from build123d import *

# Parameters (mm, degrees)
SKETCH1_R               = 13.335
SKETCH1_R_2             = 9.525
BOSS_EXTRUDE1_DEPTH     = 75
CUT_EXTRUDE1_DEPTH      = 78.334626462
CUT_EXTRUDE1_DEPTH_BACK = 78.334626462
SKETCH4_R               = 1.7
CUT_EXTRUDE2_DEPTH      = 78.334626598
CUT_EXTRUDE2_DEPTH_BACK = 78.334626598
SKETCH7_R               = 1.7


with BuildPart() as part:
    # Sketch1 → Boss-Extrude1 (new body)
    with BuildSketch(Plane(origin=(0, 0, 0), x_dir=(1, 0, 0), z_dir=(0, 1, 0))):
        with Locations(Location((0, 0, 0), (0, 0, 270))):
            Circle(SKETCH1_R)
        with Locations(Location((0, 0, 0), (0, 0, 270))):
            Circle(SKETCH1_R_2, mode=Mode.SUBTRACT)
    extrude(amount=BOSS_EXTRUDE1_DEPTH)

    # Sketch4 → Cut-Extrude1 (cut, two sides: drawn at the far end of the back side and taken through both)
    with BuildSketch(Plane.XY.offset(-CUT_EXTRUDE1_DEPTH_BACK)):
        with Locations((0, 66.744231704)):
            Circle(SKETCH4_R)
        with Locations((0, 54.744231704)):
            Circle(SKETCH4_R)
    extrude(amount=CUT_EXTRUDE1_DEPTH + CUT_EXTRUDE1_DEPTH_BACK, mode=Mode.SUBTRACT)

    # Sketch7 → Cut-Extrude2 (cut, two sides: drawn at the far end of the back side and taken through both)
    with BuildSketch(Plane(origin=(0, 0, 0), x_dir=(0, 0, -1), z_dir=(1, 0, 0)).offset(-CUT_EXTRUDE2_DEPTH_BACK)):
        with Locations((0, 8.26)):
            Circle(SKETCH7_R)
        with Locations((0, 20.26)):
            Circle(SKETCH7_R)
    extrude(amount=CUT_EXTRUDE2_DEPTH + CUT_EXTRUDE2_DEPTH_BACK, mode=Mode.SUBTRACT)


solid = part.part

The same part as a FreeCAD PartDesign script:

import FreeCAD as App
import Part
import Sketcher

doc = App.newDocument("Part")
params = doc.addObject("Spreadsheet::Sheet", "Params")
for row, (alias, value) in enumerate([
    ("sketch1_diameter", "26.67 mm"),
    ("sketch1_diameter2", "19.05 mm"),
    ("pad1_length", "75 mm"),
    ("sketch2_diameter", "3.4 mm"),
    ("sketch3_diameter", "3.4 mm"),
], start=1):
    params.set(f"A{row}", alias)
    params.set(f"B{row}", "=" + value)
    params.setAlias(f"B{row}", alias)

body = doc.addObject("PartDesign::Body", "Body")

# Sketch on XZ plane
sketch1 = doc.addObject("Sketcher::SketchObject", "Sketch")
body.addObject(sketch1)
sketch1.AttachmentSupport = (doc.XZ_Plane, [""])
sketch1.MapMode = "FlatFace"
sketch1.addGeometry([
    Part.Circle(App.Vector(0, 0, 0), App.Vector(0, 0, 1), 13),
    Part.Circle(App.Vector(0, 0, 0), App.Vector(0, 0, 1), 10),
], False)
sketch1.addConstraint([
    Sketcher.Constraint("Coincident", 0, 3, -1, 1),
    Sketcher.Constraint("Coincident", 1, 3, -1, 1),
    Sketcher.Constraint("Diameter", 0, 26.67),
    Sketcher.Constraint("Diameter", 1, 19.05),
])
sketch1.setExpression("Constraints[2]", "Params.sketch1_diameter")
sketch1.setExpression("Constraints[3]", "Params.sketch1_diameter2")
pad1 = doc.addObject("PartDesign::Pad", "Pad")
body.addObject(pad1)
pad1.Profile = sketch1
pad1.setExpression("Length", "Params.pad1_length")
pad1.Reversed = True

# Sketch on XY plane
sketch2 = doc.addObject("Sketcher::SketchObject", "Sketch001")
body.addObject(sketch2)
sketch2.AttachmentSupport = (doc.XY_Plane, [""])
sketch2.MapMode = "FlatFace"
sketch2.addGeometry([
    Part.Circle(App.Vector(0, 66.7, 0), App.Vector(0, 0, 1), 1.7),
    Part.Circle(App.Vector(0, 54.7, 0), App.Vector(0, 0, 1), 1.7),
], False)
sketch2.addConstraint([
    Sketcher.Constraint("Equal", 0, 1),
    Sketcher.Constraint("PointOnObject", 0, 3, -2),
    Sketcher.Constraint("PointOnObject", 1, 3, -2),
    Sketcher.Constraint("Diameter", 0, 3.4),
    Sketcher.Constraint("DistanceY", 1, 3, 0, 3, 12.0),
    Sketcher.Constraint("DistanceY", -1, 1, 0, 3, 66.744232),
])
sketch2.setExpression("Constraints[3]", "Params.sketch2_diameter")
pocket1 = doc.addObject("PartDesign::Pocket", "Pocket")
body.addObject(pocket1)
pocket1.Profile = sketch2
pocket1.Type = "ThroughAll"
pocket1.Midplane = True

# Sketch on YZ plane
sketch3 = doc.addObject("Sketcher::SketchObject", "Sketch002")
body.addObject(sketch3)
sketch3.AttachmentSupport = (doc.YZ_Plane, [""])
sketch3.MapMode = "FlatFace"
sketch3.addGeometry([
    Part.Circle(App.Vector(8.3, 0, 0), App.Vector(0, 0, 1), 1.7),
    Part.Circle(App.Vector(20.3, 0, 0), App.Vector(0, 0, 1), 1.7),
], False)
sketch3.addConstraint([
    Sketcher.Constraint("Equal", 0, 1),
    Sketcher.Constraint("PointOnObject", 0, 3, -1),
    Sketcher.Constraint("PointOnObject", 1, 3, -1),
    Sketcher.Constraint("Diameter", 0, 3.4),
    Sketcher.Constraint("DistanceX", 0, 3, 1, 3, 12.0),
    Sketcher.Constraint("DistanceX", -1, 1, 0, 3, 8.26),
])
sketch3.setExpression("Constraints[3]", "Params.sketch3_diameter")
pocket2 = doc.addObject("PartDesign::Pocket", "Pocket001")
body.addObject(pocket2)
pocket2.Profile = sketch3
pocket2.Type = "ThroughAll"
pocket2.Midplane = True

doc.recompute()
